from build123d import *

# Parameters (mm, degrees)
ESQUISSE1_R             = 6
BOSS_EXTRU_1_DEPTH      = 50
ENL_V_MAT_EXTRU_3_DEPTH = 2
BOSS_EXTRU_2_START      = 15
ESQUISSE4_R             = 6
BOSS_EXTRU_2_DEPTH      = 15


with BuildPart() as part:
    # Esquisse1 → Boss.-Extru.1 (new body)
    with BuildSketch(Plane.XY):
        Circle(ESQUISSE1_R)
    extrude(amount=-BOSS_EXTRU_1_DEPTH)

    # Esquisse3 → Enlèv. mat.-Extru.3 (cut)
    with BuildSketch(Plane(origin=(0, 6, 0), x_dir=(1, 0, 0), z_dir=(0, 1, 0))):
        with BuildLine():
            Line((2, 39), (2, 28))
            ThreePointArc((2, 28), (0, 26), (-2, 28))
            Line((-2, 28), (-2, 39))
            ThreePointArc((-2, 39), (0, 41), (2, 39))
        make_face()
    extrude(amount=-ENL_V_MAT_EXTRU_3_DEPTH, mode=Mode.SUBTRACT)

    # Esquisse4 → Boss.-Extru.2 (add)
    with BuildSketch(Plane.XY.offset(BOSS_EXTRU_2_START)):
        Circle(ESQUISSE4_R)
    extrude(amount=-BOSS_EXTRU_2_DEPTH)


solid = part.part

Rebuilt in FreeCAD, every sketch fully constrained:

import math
import FreeCAD as App
import Part
import Sketcher

V = App.Vector

doc = App.newDocument("Part")
body = doc.addObject("PartDesign::Body", "Body")

sketch1 = doc.addObject("Sketcher::SketchObject", "Sketch")
body.addObject(sketch1)
sketch1.AttachmentSupport = (doc.XY_Plane, [""])
sketch1.MapMode = "FlatFace"
sketch1.addGeometry(Part.Circle(V(0, 0, 0), V(0, 0, 1), 6), False)
sketch1.addConstraint([
    Sketcher.Constraint("Coincident", 0, 3, -1, 1),
    Sketcher.Constraint("Diameter", 0, 12.0),
])
pad1 = doc.addObject("PartDesign::Pad", "Pad")
body.addObject(pad1)
pad1.Profile = sketch1
pad1.Length = 50
pad1.Reversed = True

sketch2 = doc.addObject("Sketcher::SketchObject", "Sketch001")
body.addObject(sketch2)
sketch2.AttachmentSupport = (doc.XZ_Plane, [""])
sketch2.MapMode = "FlatFace"
sketch2.AttachmentOffset = App.Placement(V(0, 0, -6), App.Rotation())
sketch2.addGeometry([
    Part.LineSegment(V(2, -28, 0), V(2, -39, 0)),
    Part.ArcOfCircle(Part.Circle(V(0, -39, 0), V(0, 0, 1), 2), math.radians(180), math.radians(360)),
    Part.LineSegment(V(-2, -39, 0), V(-2, -28, 0)),
    Part.ArcOfCircle(Part.Circle(V(0, -28, 0), V(0, 0, 1), 2), math.radians(0), math.radians(180)),
], False)
sketch2.addConstraint([
    Sketcher.Constraint("Tangent", 0, 2, 1, 2),
    Sketcher.Constraint("Tangent", 1, 1, 2, 1),
    Sketcher.Constraint("Tangent", 2, 2, 3, 2),
    Sketcher.Constraint("Tangent", 3, 1, 0, 1),
    Sketcher.Constraint("Vertical", 0),
    Sketcher.Constraint("Vertical", 2),
    Sketcher.Constraint("PointOnObject", 1, 3, -2),
    Sketcher.Constraint("Radius", 1, 2.0),
    Sketcher.Constraint("DistanceY", 0, 2, 0, 1, 11.0),
    Sketcher.Constraint("DistanceY", 1, 3, -1, 1, 39.0),
])
pocket1 = doc.addObject("PartDesign::Pocket", "Pocket")
body.addObject(pocket1)
pocket1.Profile = sketch2
pocket1.Length = 2
pocket1.Reversed = True

sketch3 = doc.addObject("Sketcher::SketchObject", "Sketch002")
body.addObject(sketch3)
sketch3.AttachmentSupport = (doc.XY_Plane, [""])
sketch3.MapMode = "FlatFace"
sketch3.AttachmentOffset = App.Placement(V(0, 0, 15), App.Rotation())
sketch3.addGeometry(Part.Circle(V(0, 0, 0), V(0, 0, 1), 6), False)
sketch3.addConstraint([
    Sketcher.Constraint("Coincident", 0, 3, -1, 1),
    Sketcher.Constraint("Diameter", 0, 12.0),
])
pad2 = doc.addObject("PartDesign::Pad", "Pad001")
body.addObject(pad2)
pad2.Profile = sketch3
pad2.Length = 15
pad2.Reversed = True

doc.recompute()
